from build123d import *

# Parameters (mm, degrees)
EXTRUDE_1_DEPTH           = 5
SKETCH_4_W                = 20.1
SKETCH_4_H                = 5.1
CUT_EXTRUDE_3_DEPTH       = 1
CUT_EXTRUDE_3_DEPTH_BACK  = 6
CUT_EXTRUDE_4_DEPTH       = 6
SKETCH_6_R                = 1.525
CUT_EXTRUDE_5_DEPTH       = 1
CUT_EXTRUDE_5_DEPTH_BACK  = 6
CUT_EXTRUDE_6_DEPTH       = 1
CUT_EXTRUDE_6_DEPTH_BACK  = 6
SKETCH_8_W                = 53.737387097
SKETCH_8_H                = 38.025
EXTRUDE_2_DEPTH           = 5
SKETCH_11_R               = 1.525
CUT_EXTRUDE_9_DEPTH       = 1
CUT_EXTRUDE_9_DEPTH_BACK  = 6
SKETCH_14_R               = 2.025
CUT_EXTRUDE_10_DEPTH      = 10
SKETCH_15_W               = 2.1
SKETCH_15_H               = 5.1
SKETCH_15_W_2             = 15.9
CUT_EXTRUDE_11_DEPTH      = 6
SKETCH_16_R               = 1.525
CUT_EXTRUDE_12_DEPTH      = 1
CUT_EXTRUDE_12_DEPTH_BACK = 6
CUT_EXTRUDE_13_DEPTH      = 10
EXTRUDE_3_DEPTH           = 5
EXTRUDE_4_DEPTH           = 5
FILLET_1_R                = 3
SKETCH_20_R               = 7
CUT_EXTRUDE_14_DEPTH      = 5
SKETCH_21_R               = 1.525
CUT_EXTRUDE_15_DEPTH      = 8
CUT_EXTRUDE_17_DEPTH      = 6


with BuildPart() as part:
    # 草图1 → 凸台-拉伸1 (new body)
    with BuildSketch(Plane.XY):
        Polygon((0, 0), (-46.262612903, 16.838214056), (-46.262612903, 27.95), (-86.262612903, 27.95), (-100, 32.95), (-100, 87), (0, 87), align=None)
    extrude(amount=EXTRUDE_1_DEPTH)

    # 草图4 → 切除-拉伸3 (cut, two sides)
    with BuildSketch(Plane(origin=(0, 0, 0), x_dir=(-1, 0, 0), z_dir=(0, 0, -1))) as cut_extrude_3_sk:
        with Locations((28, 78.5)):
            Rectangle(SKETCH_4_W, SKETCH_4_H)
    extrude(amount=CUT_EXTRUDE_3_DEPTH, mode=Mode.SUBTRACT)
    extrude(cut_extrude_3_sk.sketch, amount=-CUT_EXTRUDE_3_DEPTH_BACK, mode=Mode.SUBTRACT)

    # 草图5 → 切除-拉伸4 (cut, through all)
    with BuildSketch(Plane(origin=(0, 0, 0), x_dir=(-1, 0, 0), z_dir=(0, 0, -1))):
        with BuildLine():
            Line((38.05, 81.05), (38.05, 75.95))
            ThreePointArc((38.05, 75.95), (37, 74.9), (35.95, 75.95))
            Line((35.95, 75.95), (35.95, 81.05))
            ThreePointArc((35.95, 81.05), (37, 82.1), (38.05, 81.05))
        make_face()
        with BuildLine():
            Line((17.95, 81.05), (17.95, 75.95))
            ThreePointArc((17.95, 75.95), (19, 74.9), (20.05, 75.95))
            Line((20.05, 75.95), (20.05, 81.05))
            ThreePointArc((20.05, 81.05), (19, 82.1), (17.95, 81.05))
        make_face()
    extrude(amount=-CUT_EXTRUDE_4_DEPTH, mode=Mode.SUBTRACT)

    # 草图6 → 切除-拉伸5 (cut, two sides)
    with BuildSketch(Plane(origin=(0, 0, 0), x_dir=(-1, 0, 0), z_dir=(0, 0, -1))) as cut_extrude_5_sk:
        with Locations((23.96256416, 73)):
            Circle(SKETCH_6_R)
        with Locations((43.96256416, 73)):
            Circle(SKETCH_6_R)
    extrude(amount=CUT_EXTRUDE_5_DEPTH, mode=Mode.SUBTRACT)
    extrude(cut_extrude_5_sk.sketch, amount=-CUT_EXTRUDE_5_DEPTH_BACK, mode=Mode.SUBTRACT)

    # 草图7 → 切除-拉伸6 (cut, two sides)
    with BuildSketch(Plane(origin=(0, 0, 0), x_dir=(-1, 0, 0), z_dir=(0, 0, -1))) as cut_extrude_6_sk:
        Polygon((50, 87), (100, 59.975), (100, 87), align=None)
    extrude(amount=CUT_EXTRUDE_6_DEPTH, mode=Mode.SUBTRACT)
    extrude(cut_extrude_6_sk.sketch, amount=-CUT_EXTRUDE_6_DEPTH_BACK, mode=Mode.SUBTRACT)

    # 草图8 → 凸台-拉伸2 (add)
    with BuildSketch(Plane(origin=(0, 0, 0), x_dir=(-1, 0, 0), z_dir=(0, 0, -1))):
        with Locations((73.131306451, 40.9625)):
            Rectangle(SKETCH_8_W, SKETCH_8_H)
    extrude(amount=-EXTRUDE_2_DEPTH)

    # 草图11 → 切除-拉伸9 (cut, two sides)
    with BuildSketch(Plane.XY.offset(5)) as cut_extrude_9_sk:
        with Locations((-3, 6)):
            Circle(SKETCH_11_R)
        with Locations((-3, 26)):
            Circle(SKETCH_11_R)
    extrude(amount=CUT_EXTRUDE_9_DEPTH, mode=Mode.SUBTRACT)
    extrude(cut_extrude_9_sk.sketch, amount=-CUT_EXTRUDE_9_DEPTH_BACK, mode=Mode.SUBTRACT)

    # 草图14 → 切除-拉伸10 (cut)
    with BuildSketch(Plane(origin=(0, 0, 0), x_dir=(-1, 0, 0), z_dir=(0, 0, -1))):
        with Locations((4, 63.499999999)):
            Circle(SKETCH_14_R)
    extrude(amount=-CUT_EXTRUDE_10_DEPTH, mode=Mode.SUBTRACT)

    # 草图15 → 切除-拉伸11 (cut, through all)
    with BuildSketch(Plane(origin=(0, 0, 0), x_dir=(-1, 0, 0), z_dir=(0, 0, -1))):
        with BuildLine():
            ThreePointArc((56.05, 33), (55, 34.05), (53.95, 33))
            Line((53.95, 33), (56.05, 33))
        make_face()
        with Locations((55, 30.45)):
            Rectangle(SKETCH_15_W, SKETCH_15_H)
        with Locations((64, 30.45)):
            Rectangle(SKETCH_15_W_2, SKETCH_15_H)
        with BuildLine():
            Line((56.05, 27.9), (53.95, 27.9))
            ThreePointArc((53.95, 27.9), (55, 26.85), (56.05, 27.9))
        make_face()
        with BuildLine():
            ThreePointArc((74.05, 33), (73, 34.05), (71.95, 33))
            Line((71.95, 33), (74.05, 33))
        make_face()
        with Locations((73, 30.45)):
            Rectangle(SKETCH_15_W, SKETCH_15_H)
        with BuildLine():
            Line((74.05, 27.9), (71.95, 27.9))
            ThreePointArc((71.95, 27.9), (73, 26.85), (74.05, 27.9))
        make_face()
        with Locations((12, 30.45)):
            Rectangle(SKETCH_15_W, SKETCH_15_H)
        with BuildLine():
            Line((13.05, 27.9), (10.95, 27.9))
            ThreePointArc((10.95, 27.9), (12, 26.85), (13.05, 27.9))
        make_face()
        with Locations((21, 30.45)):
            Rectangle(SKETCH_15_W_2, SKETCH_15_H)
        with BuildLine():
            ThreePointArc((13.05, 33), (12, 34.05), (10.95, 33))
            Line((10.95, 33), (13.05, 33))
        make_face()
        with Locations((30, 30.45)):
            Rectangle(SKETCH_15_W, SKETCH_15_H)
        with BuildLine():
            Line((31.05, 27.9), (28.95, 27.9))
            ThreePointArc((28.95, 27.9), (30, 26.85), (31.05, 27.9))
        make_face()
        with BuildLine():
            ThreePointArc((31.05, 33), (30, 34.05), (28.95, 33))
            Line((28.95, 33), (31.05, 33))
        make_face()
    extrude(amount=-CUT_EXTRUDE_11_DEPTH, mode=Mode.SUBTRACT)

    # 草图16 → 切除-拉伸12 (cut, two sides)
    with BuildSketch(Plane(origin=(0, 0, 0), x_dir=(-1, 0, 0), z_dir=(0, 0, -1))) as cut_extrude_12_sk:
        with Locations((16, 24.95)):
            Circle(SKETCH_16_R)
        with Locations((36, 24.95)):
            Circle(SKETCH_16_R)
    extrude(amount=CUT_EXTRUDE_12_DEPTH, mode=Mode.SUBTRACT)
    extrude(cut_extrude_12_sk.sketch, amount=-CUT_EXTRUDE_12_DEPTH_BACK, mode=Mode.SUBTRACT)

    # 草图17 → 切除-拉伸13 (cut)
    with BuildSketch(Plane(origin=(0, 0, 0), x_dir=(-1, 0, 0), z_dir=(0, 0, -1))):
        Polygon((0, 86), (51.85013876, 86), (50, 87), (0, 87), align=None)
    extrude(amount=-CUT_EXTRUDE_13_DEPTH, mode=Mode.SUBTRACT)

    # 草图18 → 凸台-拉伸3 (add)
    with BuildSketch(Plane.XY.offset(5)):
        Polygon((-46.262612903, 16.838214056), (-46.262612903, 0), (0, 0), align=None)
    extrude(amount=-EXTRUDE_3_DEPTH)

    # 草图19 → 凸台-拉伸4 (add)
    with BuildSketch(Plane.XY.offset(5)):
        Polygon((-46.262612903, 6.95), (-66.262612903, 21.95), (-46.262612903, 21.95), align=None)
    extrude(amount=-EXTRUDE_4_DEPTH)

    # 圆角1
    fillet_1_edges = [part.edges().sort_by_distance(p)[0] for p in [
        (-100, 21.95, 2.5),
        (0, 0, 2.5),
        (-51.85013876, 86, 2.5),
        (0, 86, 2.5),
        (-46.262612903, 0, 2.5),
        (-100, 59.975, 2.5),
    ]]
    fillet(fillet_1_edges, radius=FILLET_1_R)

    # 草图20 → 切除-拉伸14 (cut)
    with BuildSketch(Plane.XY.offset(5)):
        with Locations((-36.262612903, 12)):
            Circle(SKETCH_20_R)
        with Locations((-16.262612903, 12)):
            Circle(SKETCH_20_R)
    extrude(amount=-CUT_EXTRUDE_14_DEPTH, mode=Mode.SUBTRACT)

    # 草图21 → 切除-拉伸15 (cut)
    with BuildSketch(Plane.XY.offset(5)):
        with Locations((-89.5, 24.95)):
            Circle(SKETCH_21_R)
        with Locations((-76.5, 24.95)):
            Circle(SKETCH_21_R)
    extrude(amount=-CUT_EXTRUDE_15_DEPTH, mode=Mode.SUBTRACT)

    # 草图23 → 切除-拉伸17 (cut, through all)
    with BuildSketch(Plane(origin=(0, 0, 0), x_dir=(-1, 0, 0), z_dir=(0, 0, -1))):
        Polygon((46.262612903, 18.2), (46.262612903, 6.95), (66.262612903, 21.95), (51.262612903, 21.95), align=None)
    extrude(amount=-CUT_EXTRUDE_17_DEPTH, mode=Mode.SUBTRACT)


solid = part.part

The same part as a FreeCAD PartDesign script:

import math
import FreeCAD as App
import Part
import Sketcher

V = App.Vector
Q = App.Units.Quantity


def edges_at(feature, points):
    """Names of the edges that pass closest to the given points."""
    edges = feature.Shape.Edges
    near = lambda p: min(range(len(edges)), key=lambda i: edges[i].distToShape(Part.Vertex(*p))[0])
    return sorted({f"Edge{near(p) + 1}" for p in points})

doc = App.newDocument("Part")
body = doc.addObject("PartDesign::Body", "Body")

sketch1 = body.newObject("Sketcher::SketchObject", "Sketch")
sketch1.AttachmentSupport = (doc.getObject("XY_Plane"), [""])
sketch1.MapMode = "FlatFace"
sketch1.addGeometry(Part.LineSegment(V(-46.262613, 16.838214, 0), V(0, 0, 0)), False)
sketch1.addGeometry(Part.LineSegment(V(0, 0, 0), V(0, 87, 0)), False)
sketch1.addGeometry(Part.LineSegment(V(0, 87, 0), V(-100, 87, 0)), False)
sketch1.addGeometry(Part.LineSegment(V(-100, 87, 0), V(-100, 32.95, 0)), False)
sketch1.addGeometry(Part.LineSegment(V(-100, 32.95, 0), V(-86.262613, 27.95, 0)), False)
sketch1.addGeometry(Part.LineSegment(V(-86.262613, 27.95, 0), V(-46.262613, 27.95, 0)), False)
sketch1.addGeometry(Part.LineSegment(V(-46.262613, 27.95, 0), V(-46.262613, 16.838214, 0)), False)
sketch1.addConstraint(Sketcher.Constraint("Coincident", 0, 2, 1, 1))
sketch1.addConstraint(Sketcher.Constraint("Coincident", 1, 2, 2, 1))
sketch1.addConstraint(Sketcher.Constraint("Coincident", 2, 2, 3, 1))
sketch1.addConstraint(Sketcher.Constraint("Coincident", 3, 2, 4, 1))
sketch1.addConstraint(Sketcher.Constraint("Coincident", 4, 2, 5, 1))
sketch1.addConstraint(Sketcher.Constraint("Coincident", 5, 2, 6, 1))
sketch1.addConstraint(Sketcher.Constraint("Coincident", 6, 2, 0, 1))
sketch1.addConstraint(Sketcher.Constraint("Vertical", 1))
sketch1.addConstraint(Sketcher.Constraint("Horizontal", 2))
sketch1.addConstraint(Sketcher.Constraint("Vertical", 3))
sketch1.addConstraint(Sketcher.Constraint("Horizontal", 5))
sketch1.addConstraint(Sketcher.Constraint("Vertical", 6))
sketch1.addConstraint(Sketcher.Constraint("Coincident", 0, 2, -1, 1))
sketch1.addConstraint(Sketcher.Constraint("Parallel", 0, 4))
sketch1.addConstraint(Sketcher.Constraint("DistanceX", 2, 2, 2, 1, Q("100 mm")))
sketch1.addConstraint(Sketcher.Constraint("DistanceX", 5, 1, 5, 2, Q("40 mm")))
sketch1.addConstraint(Sketcher.Constraint("DistanceY", 1, 1, 1, 2, Q("87 mm")))
sketch1.addConstraint(Sketcher.Constraint("Angle", 0, Q("-20 deg")))
sketch1.addConstraint(Sketcher.Constraint("DistanceY", 4, 2, 3, 2, Q("5 mm")))
sketch1.addConstraint(Sketcher.Constraint("DistanceY", 3, 2, 3, 1, Q("54.05 mm")))
pad1 = body.newObject("PartDesign::Pad", "Pad")
pad1.Profile = sketch1
pad1.Length = 5

sketch2 = body.newObject("Sketcher::SketchObject", "Sketch001")
sketch2.AttachmentSupport = (doc.getObject("XY_Plane"), [""])
sketch2.MapMode = "FlatFace"
sketch2.addGeometry(Part.LineSegment(V(-17.95, 81.05, 0), V(-17.95, 75.95, 0)), False)
sketch2.addGeometry(Part.LineSegment(V(-17.95, 75.95, 0), V(-38.05, 75.95, 0)), False)
sketch2.addGeometry(Part.LineSegment(V(-38.05, 75.95, 0), V(-38.05, 81.05, 0)), False)
sketch2.addGeometry(Part.LineSegment(V(-38.05, 81.05, 0), V(-17.95, 81.05, 0)), False)
sketch2.addConstraint(Sketcher.Constraint("Coincident", 0, 2, 1, 1))
sketch2.addConstraint(Sketcher.Constraint("Coincident", 1, 2, 2, 1))
sketch2.addConstraint(Sketcher.Constraint("Coincident", 2, 2, 3, 1))
sketch2.addConstraint(Sketcher.Constraint("Coincident", 3, 2, 0, 1))
sketch2.addConstraint(Sketcher.Constraint("Vertical", 0))
sketch2.addConstraint(Sketcher.Constraint("Horizontal", 1))
sketch2.addConstraint(Sketcher.Constraint("Vertical", 2))
sketch2.addConstraint(Sketcher.Constraint("Horizontal", 3))
sketch2.addConstraint(Sketcher.Constraint("DistanceX", 1, 2, 1, 1, Q("20.1 mm")))
sketch2.addConstraint(Sketcher.Constraint("DistanceY", 0, 2, 0, 1, Q("5.1 mm")))
sketch2.addConstraint(Sketcher.Constraint("DistanceX", 0, 2, -1, 1, Q("17.95 mm")))
sketch2.addConstraint(Sketcher.Constraint("DistanceY", -1, 1, 0, 2, Q("75.95 mm")))
pocket1 = body.newObject("PartDesign::Pocket", "Pocket")
pocket1.Profile = sketch2
pocket1.Type = "ThroughAll"
pocket1.Midplane = True

sketch3 = body.newObject("Sketcher::SketchObject", "Sketch002")
sketch3.AttachmentSupport = (doc.getObject("XY_Plane"), [""])
sketch3.MapMode = "FlatFace"
sketch3.addGeometry(Part.LineSegment(V(-38.05, 75.95, 0), V(-38.05, 81.05, 0)), False)
sketch3.addGeometry(Part.ArcOfCircle(Part.Circle(V(-37, 81.05, 0), V(0, 0, 1), 1.05), math.radians(0), math.radians(180)), False)
sketch3.addGeometry(Part.LineSegment(V(-35.95, 81.05, 0), V(-35.95, 75.95, 0)), False)
sketch3.addGeometry(Part.ArcOfCircle(Part.Circle(V(-37, 75.95, 0), V(0, 0, 1), 1.05), math.radians(180), math.radians(360)), False)
sketch3.addGeometry(Part.LineSegment(V(-17.95, 81.05, 0), V(-17.95, 75.95, 0)), False)
sketch3.addGeometry(Part.ArcOfCircle(Part.Circle(V(-19, 75.95, 0), V(0, 0, 1), 1.05), math.radians(180), math.radians(360)), False)
sketch3.addGeometry(Part.LineSegment(V(-20.05, 75.95, 0), V(-20.05, 81.05, 0)), False)
sketch3.addGeometry(Part.ArcOfCircle(Part.Circle(V(-19, 81.05, 0), V(0, 0, 1), 1.05), math.radians(0), math.radians(180)), False)
sketch3.addConstraint(Sketcher.Constraint("Tangent", 0, 2, 1, 2))
sketch3.addConstraint(Sketcher.Constraint("Tangent", 1, 1, 2, 1))
sketch3.addConstraint(Sketcher.Constraint("Tangent", 2, 2, 3, 2))
sketch3.addConstraint(Sketcher.Constraint("Tangent", 3, 1, 0, 1))
sketch3.addConstraint(Sketcher.Constraint("Tangent", 4, 2, 5, 2))
sketch3.addConstraint(Sketcher.Constraint("Tangent", 5, 1, 6, 1))
sketch3.addConstraint(Sketcher.Constraint("Tangent", 6, 2, 7, 2))
sketch3.addConstraint(Sketcher.Constraint("Tangent", 7, 1, 4, 1))
sketch3.addConstraint(Sketcher.Constraint("Vertical", 0))
sketch3.addConstraint(Sketcher.Constraint("Vertical", 2))
sketch3.addConstraint(Sketcher.Constraint("Vertical", 4))
sketch3.addConstraint(Sketcher.Constraint("Vertical", 6))
sketch3.addConstraint(Sketcher.Constraint("Equal", 3, 5))
sketch3.addConstraint(Sketcher.Constraint("Horizontal", 3, 3, 5, 3))
sketch3.addConstraint(Sketcher.Constraint("Horizontal", 1, 3, 7, 3))
sketch3.addConstraint(Sketcher.Constraint("Radius", 1, Q("1.05 mm")))
sketch3.addConstraint(Sketcher.Constraint("DistanceY", 0, 1, 0, 2, Q("5.1 mm")))
sketch3.addConstraint(Sketcher.Constraint("DistanceX", 1, 3, -1, 1, Q("37 mm")))
sketch3.addConstraint(Sketcher.Constraint("DistanceX", 5, 3, -1, 1, Q("19 mm")))
sketch3.addConstraint(Sketcher.Constraint("DistanceY", -1, 1, 1, 3, Q("81.05 mm")))
pocket2 = body.newObject("PartDesign::Pocket", "Pocket001")
pocket2.Profile = sketch3
pocket2.Type = "ThroughAll"
pocket2.Reversed = True

sketch4 = body.newObject("Sketcher::SketchObject", "Sketch003")
sketch4.AttachmentSupport = (doc.getObject("XY_Plane"), [""])
sketch4.MapMode = "FlatFace"
sketch4.addGeometry(Part.Circle(V(-23.962564, 73, 0), V(0, 0, 1), 1.525), False)
sketch4.addGeometry(Part.Circle(V(-43.962564, 73, 0), V(0, 0, 1), 1.525), False)
sketch4.addConstraint(Sketcher.Constraint("Equal", 0, 1))
sketch4.addConstraint(Sketcher.Constraint("Horizontal", 0, 3, 1, 3))
sketch4.addConstraint(Sketcher.Constraint("Diameter", 0, Q("3.05 mm")))
sketch4.addConstraint(Sketcher.Constraint("DistanceY", -1, 1, 0, 3, Q("73 mm")))
sketch4.addConstraint(Sketcher.Constraint("DistanceX", 1, 3, 0, 3, Q("20 mm")))
sketch4.addConstraint(Sketcher.Constraint("DistanceX", 0, 3, -1, 1, Q("23.962564 mm")))
pocket3 = body.newObject("PartDesign::Pocket", "Pocket002")
pocket3.Profile = sketch4
pocket3.Type = "ThroughAll"
pocket3.Midplane = True

sketch5 = body.newObject("Sketcher::SketchObject", "Sketch004")
sketch5.AttachmentSupport = (doc.getObject("XY_Plane"), [""])
sketch5.MapMode = "FlatFace"
sketch5.addGeometry(Part.LineSegment(V(-50, 87, 0), V(-100, 59.975, 0)), False)
sketch5.addGeometry(Part.LineSegment(V(-100, 59.975, 0), V(-100, 87, 0)), False)
sketch5.addGeometry(Part.LineSegment(V(-100, 87, 0), V(-50, 87, 0)), False)
sketch5.addConstraint(Sketcher.Constraint("Coincident", 0, 2, 1, 1))
sketch5.addConstraint(Sketcher.Constraint("Coincident", 1, 2, 2, 1))
sketch5.addConstraint(Sketcher.Constraint("Coincident", 2, 2, 0, 1))
sketch5.addConstraint(Sketcher.Constraint("Vertical", 1))
sketch5.addConstraint(Sketcher.Constraint("Horizontal", 2))
sketch5.addConstraint(Sketcher.Constraint("DistanceX", 2, 1, 2, 2, Q("50 mm")))
sketch5.addConstraint(Sketcher.Constraint("DistanceX", 0, 2, -1, 1, Q("100 mm")))
sketch5.addConstraint(Sketcher.Constraint("DistanceY", -1, 1, 1, 2, Q("87 mm")))
sketch5.addConstraint(Sketcher.Constraint("DistanceY", 1, 1, 1, 2, Q("27.025 mm")))
pocket4 = body.newObject("PartDesign::Pocket", "Pocket003")
pocket4.Profile = sketch5
pocket4.Type = "ThroughAll"
pocket4.Midplane = True

sketch6 = body.newObject("Sketcher::SketchObject", "Sketch005")
sketch6.AttachmentSupport = (doc.getObject("XY_Plane"), [""])
sketch6.MapMode = "FlatFace"
sketch6.addGeometry(Part.LineSegment(V(-46.262613, 59.975, 0), V(-46.262613, 21.95, 0)), False)
sketch6.addGeometry(Part.LineSegment(V(-46.262613, 21.95, 0), V(-100, 21.95, 0)), False)
sketch6.addGeometry(Part.LineSegment(V(-100, 21.95, 0), V(-100, 59.975, 0)), False)
sketch6.addGeometry(Part.LineSegment(V(-100, 59.975, 0), V(-46.262613, 59.975, 0)), False)
sketch6.addConstraint(Sketcher.Constraint("Coincident", 0, 2, 1, 1))
sketch6.addConstraint(Sketcher.Constraint("Coincident", 1, 2, 2, 1))
sketch6.addConstraint(Sketcher.Constraint("Coincident", 2, 2, 3, 1))
sketch6.addConstraint(Sketcher.Constraint("Coincident", 3, 2, 0, 1))
sketch6.addConstraint(Sketcher.Constraint("Vertical", 0))
sketch6.addConstraint(Sketcher.Constraint("Horizontal", 1))
sketch6.addConstraint(Sketcher.Constraint("Vertical", 2))
sketch6.addConstraint(Sketcher.Constraint("Horizontal", 3))
sketch6.addConstraint(Sketcher.Constraint("DistanceX", 1, 2, -1, 1, Q("100 mm")))
sketch6.addConstraint(Sketcher.Constraint("DistanceY", 0, 2, 0, 1, Q("38.025 mm")))
sketch6.addConstraint(Sketcher.Constraint("DistanceY", -1, 1, 0, 2, Q("21.95 mm")))
sketch6.addConstraint(Sketcher.Constraint("DistanceX", 1, 2, 1, 1, Q("53.737387 mm")))
pad2 = body.newObject("PartDesign::Pad", "Pad001")
pad2.Profile = sketch6
pad2.Length = 5

sketch7 = body.newObject("Sketcher::SketchObject", "Sketch006")
sketch7.AttachmentSupport = (doc.getObject("XY_Plane"), [""])
sketch7.MapMode = "FlatFace"
sketch7.AttachmentOffset = App.Placement(V(0, 0, 5), App.Rotation())
sketch7.addGeometry(Part.Circle(V(-3, 6, 0), V(0, 0, 1), 1.525), False)
sketch7.addGeometry(Part.Circle(V(-3, 26, 0), V(0, 0, 1), 1.525), False)
sketch7.addConstraint(Sketcher.Constraint("Equal", 0, 1))
sketch7.addConstraint(Sketcher.Constraint("Vertical", 0, 3, 1, 3))
sketch7.addConstraint(Sketcher.Constraint("Diameter", 0, Q("3.05 mm")))
sketch7.addConstraint(Sketcher.Constraint("DistanceX", 0, 3, -1, 1, Q("3 mm")))
sketch7.addConstraint(Sketcher.Constraint("DistanceY", -1, 1, 0, 3, Q("6 mm")))
sketch7.addConstraint(Sketcher.Constraint("DistanceY", -1, 1, 1, 3, Q("26 mm")))
pocket5 = body.newObject("PartDesign::Pocket", "Pocket004")
pocket5.Profile = sketch7
pocket5.Type = "ThroughAll"
pocket5.Midplane = True

sketch8 = body.newObject("Sketcher::SketchObject", "Sketch007")
sketch8.AttachmentSupport = (doc.getObject("XY_Plane"), [""])
sketch8.MapMode = "FlatFace"
sketch8.addGeometry(Part.Circle(V(-4, 63.5, 0), V(0, 0, 1), 2.025), False)
sketch8.addConstraint(Sketcher.Constraint("Diameter", 0, Q("4.05 mm")))
sketch8.addConstraint(Sketcher.Constraint("DistanceX", 0, 3, -1, 1, Q("4 mm")))
sketch8.addConstraint(Sketcher.Constraint("DistanceY", -1, 1, 0, 3, Q("63.5 mm")))
pocket6 = body.newObject("PartDesign::Pocket", "Pocket005")
pocket6.Profile = sketch8
pocket6.Length = 10
pocket6.Reversed = True

sketch9 = body.newObject("Sketcher::SketchObject", "Sketch008")
sketch9.AttachmentSupport = (doc.getObject("XY_Plane"), [""])
sketch9.MapMode = "FlatFace"
sketch9.addGeometry(Part.ArcOfCircle(Part.Circle(V(-55, 33, 0), V(0, 0, 1), 1.05), math.radians(0), math.radians(180)), False)
sketch9.addGeometry(Part.LineSegment(V(-53.95, 33, 0), V(-53.95, 27.9, 0)), False)
sketch9.addGeometry(Part.ArcOfCircle(Part.Circle(V(-55, 27.9, 0), V(0, 0, 1), 1.05), math.radians(180), math.radians(360)), False)
sketch9.addGeometry(Part.LineSegment(V(-56.05, 27.9, 0), V(-71.95, 27.9, 0)), False)
sketch9.addGeometry(Part.ArcOfCircle(Part.Circle(V(-73, 27.9, 0), V(0, 0, 1), 1.05), math.radians(180), math.radians(360)), False)
sketch9.addGeometry(Part.LineSegment(V(-74.05, 27.9, 0), V(-74.05, 33, 0)), False)
sketch9.addGeometry(Part.ArcOfCircle(Part.Circle(V(-73, 33, 0), V(0, 0, 1), 1.05), math.radians(0), math.radians(180)), False)
sketch9.addGeometry(Part.LineSegment(V(-71.95, 33, 0), V(-56.05, 33, 0)), False)
sketch9.addGeometry(Part.LineSegment(V(-10.95, 33, 0), V(-10.95, 27.9, 0)), False)
sketch9.addGeometry(Part.ArcOfCircle(Part.Circle(V(-12, 27.9, 0), V(0, 0, 1), 1.05), math.radians(180), math.radians(360)), False)
sketch9.addGeometry(Part.LineSegment(V(-13.05, 27.9, 0), V(-28.95, 27.9, 0)), False)
sketch9.addGeometry(Part.ArcOfCircle(Part.Circle(V(-30, 27.9, 0), V(0, 0, 1), 1.05), math.radians(180), math.radians(360)), False)
sketch9.addGeometry(Part.LineSegment(V(-31.05, 27.9, 0), V(-31.05, 33, 0)), False)
sketch9.addGeometry(Part.ArcOfCircle(Part.Circle(V(-30, 33, 0), V(0, 0, 1), 1.05), math.radians(0), math.radians(180)), False)
sketch9.addGeometry(Part.LineSegment(V(-28.95, 33, 0), V(-13.05, 33, 0)), False)
sketch9.addGeometry(Part.ArcOfCircle(Part.Circle(V(-12, 33, 0), V(0, 0, 1), 1.05), math.radians(0), math.radians(180)), False)
sketch9.addConstraint(Sketcher.Constraint("Tangent", 0, 1, 1, 1))
sketch9.addConstraint(Sketcher.Constraint("Tangent", 1, 2, 2, 2))
sketch9.addConstraint(Sketcher.Constraint("Coincident", 2, 1, 3, 1))
sketch9.addConstraint(Sketcher.Constraint("Coincident", 3, 2, 4, 2))
sketch9.addConstraint(Sketcher.Constraint("Tangent", 4, 1, 5, 1))
sketch9.addConstraint(Sketcher.Constraint("Tangent", 5, 2, 6, 2))
sketch9.addConstraint(Sketcher.Constraint("Coincident", 6, 1, 7, 1))
sketch9.addConstraint(Sketcher.Constraint("Coincident", 7, 2, 0, 2))
sketch9.addConstraint(Sketcher.Constraint("Tangent", 8, 2, 9, 2))
sketch9.addConstraint(Sketcher.Constraint("Coincident", 9, 1, 10, 1))
sketch9.addConstraint(Sketcher.Constraint("Coincident", 10, 2, 11, 2))
sketch9.addConstraint(Sketcher.Constraint("Tangent", 11, 1, 12, 1))
sketch9.addConstraint(Sketcher.Constraint("Tangent", 12, 2, 13, 2))
sketch9.addConstraint(Sketcher.Constraint("Coincident", 13, 1, 14, 1))
sketch9.addConstraint(Sketcher.Constraint("Coincident", 14, 2, 15, 2))
sketch9.addConstraint(Sketcher.Constraint("Tangent", 15, 1, 8, 1))
sketch9.addConstraint(Sketcher.Constraint("Vertical", 1))
sketch9.addConstraint(Sketcher.Constraint("Horizontal", 3))
sketch9.addConstraint(Sketcher.Constraint("Vertical", 5))
sketch9.addConstraint(Sketcher.Constraint("Horizontal", 7))
sketch9.addConstraint(Sketcher.Constraint("Vertical", 8))
sketch9.addConstraint(Sketcher.Constraint("Horizontal", 10))
sketch9.addConstraint(Sketcher.Constraint("Vertical", 12))
sketch9.addConstraint(Sketcher.Constraint("Horizontal", 14))
sketch9.addConstraint(Sketcher.Constraint("Equal", 0, 2))
sketch9.addConstraint(Sketcher.Constraint("Equal", 2, 4))
sketch9.addConstraint(Sketcher.Constraint("Equal", 4, 6))
sketch9.addConstraint(Sketcher.Constraint("Equal", 6, 9))
sketch9.addConstraint(Sketcher.Constraint("Equal", 9, 11))
sketch9.addConstraint(Sketcher.Constraint("Equal", 11, 13))
sketch9.addConstraint(Sketcher.Constraint("Equal", 13, 15))
sketch9.addConstraint(Sketcher.Constraint("Horizontal", 2, 3, 4, 3))
sketch9.addConstraint(Sketcher.Constraint("Horizontal", 0, 3, 6, 3))
sketch9.addConstraint(Sketcher.Constraint("Horizontal", 4, 3, 9, 3))
sketch9.addConstraint(Sketcher.Constraint("Horizontal", 9, 3, 11, 3))
sketch9.addConstraint(Sketcher.Constraint("Horizontal", 6, 3, 13, 3))
sketch9.addConstraint(Sketcher.Constraint("Horizontal", 13, 3, 15, 3))
sketch9.addConstraint(Sketcher.Constraint("Horizontal", 1, 2, 2, 1))
sketch9.addConstraint(Sketcher.Constraint("Horizontal", 5, 2, 6, 1))
sketch9.addConstraint(Sketcher.Constraint("Horizontal", 8, 2, 9, 1))
sketch9.addConstraint(Sketcher.Constraint("Horizontal", 12, 2, 13, 1))
sketch9.addConstraint(Sketcher.Constraint("Equal", 7, 10))
sketch9.addConstraint(Sketcher.Constraint("Radius", 0, Q("1.05 mm")))
sketch9.addConstraint(Sketcher.Constraint("DistanceX", 3, 2, 3, 1, Q("15.9 mm")))
sketch9.addConstraint(Sketcher.Constraint("DistanceY", 1, 2, 1, 1, Q("5.1 mm")))
sketch9.addConstraint(Sketcher.Constraint("DistanceX", 0, 3, -1, 1, Q("55 mm")))
sketch9.addConstraint(Sketcher.Constraint("DistanceY", -1, 1, 0, 3, Q("33 mm")))
sketch9.addConstraint(Sketcher.Constraint("DistanceX", 9, 3, -1, 1, Q("12 mm")))
pocket7 = body.newObject("PartDesign::Pocket", "Pocket006")
pocket7.Profile = sketch9
pocket7.Type = "ThroughAll"
pocket7.Reversed = True

sketch10 = body.newObject("Sketcher::SketchObject", "Sketch009")
sketch10.AttachmentSupport = (doc.getObject("XY_Plane"), [""])
sketch10.MapMode = "FlatFace"
sketch10.addGeometry(Part.Circle(V(-16, 24.95, 0), V(0, 0, 1), 1.525), False)
sketch10.addGeometry(Part.Circle(V(-36, 24.95, 0), V(0, 0, 1), 1.525), False)
sketch10.addConstraint(Sketcher.Constraint("Equal", 0, 1))
sketch10.addConstraint(Sketcher.Constraint("Horizontal", 0, 3, 1, 3))
sketch10.addConstraint(Sketcher.Constraint("Diameter", 0, Q("3.05 mm")))
sketch10.addConstraint(Sketcher.Constraint("DistanceX", 0, 3, -1, 1, Q("16 mm")))
sketch10.addConstraint(Sketcher.Constraint("DistanceX", 1, 3, -1, 1, Q("36 mm")))
sketch10.addConstraint(Sketcher.Constraint("DistanceY", -1, 1, 0, 3, Q("24.95 mm")))
pocket8 = body.newObject("PartDesign::Pocket", "Pocket007")
pocket8.Profile = sketch10
pocket8.Type = "ThroughAll"
pocket8.Midplane = True

sketch11 = body.newObject("Sketcher::SketchObject", "Sketch010")
sketch11.AttachmentSupport = (doc.getObject("XY_Plane"), [""])
sketch11.MapMode = "FlatFace"
sketch11.addGeometry(Part.LineSegment(V(0, 86, 0), V(-51.850139, 86, 0)), False)
sketch11.addGeometry(Part.LineSegment(V(-51.850139, 86, 0), V(-50, 87, 0)), False)
sketch11.addGeometry(Part.LineSegment(V(-50, 87, 0), V(0, 87, 0)), False)
sketch11.addGeometry(Part.LineSegment(V(0, 87, 0), V(0, 86, 0)), False)
sketch11.addConstraint(Sketcher.Constraint("Coincident", 0, 2, 1, 1))
sketch11.addConstraint(Sketcher.Constraint("Coincident", 1, 2, 2, 1))
sketch11.addConstraint(Sketcher.Constraint("Coincident", 2, 2, 3, 1))
sketch11.addConstraint(Sketcher.Constraint("Coincident", 3, 2, 0, 1))
sketch11.addConstraint(Sketcher.Constraint("Horizontal", 0))
sketch11.addConstraint(Sketcher.Constraint("Horizontal", 2))
sketch11.addConstraint(Sketcher.Constraint("Vertical", 3))
sketch11.addConstraint(Sketcher.Constraint("PointOnObject", 2, 2, -2))
sketch11.addConstraint(Sketcher.Constraint("DistanceX", 2, 1, 2, 2, Q("50 mm")))
sketch11.addConstraint(Sketcher.Constraint("DistanceY", 3, 2, 3, 1, Q("1 mm")))
sketch11.addConstraint(Sketcher.Constraint("DistanceY", -1, 1, 0, 2, Q("86 mm")))
sketch11.addConstraint(Sketcher.Constraint("DistanceX", 0, 2, 0, 1, Q("51.850139 mm")))
pocket9 = body.newObject("PartDesign::Pocket", "Pocket008")
pocket9.Profile = sketch11
pocket9.Length = 10
pocket9.Reversed = True

sketch12 = body.newObject("Sketcher::SketchObject", "Sketch011")
sketch12.AttachmentSupport = (doc.getObject("XY_Plane"), [""])
sketch12.MapMode = "FlatFace"
sketch12.AttachmentOffset = App.Placement(V(0, 0, 5), App.Rotation())
sketch12.addGeometry(Part.LineSegment(V(-46.262613, 16.838214, 0), V(-46.262613, 0, 0)), False)
sketch12.addGeometry(Part.LineSegment(V(-46.262613, 0, 0), V(0, 0, 0)), False)
sketch12.addGeometry(Part.LineSegment(V(0, 0, 0), V(-46.262613, 16.838214, 0)), False)
sketch12.addConstraint(Sketcher.Constraint("Coincident", 0, 2, 1, 1))
sketch12.addConstraint(Sketcher.Constraint("Coincident", 1, 2, 2, 1))
sketch12.addConstraint(Sketcher.Constraint("Coincident", 2, 2, 0, 1))
sketch12.addConstraint(Sketcher.Constraint("Vertical", 0))
sketch12.addConstraint(Sketcher.Constraint("Horizontal", 1))
sketch12.addConstraint(Sketcher.Constraint("Coincident", 1, 2, -1, 1))
sketch12.addConstraint(Sketcher.Constraint("Angle", 2, Q("160 deg")))
sketch12.addConstraint(Sketcher.Constraint("DistanceX", 1, 1, 1, 2, Q("46.262613 mm")))
pad3 = body.newObject("PartDesign::Pad", "Pad002")
pad3.Profile = sketch12
pad3.Length = 5
pad3.Reversed = True

sketch13 = body.newObject("Sketcher::SketchObject", "Sketch012")
sketch13.AttachmentSupport = (doc.getObject("XY_Plane"), [""])
sketch13.MapMode = "FlatFace"
sketch13.AttachmentOffset = App.Placement(V(0, 0, 5), App.Rotation())
sketch13.addGeometry(Part.LineSegment(V(-66.262613, 21.95, 0), V(-46.262613, 6.95, 0)), False)
sketch13.addGeometry(Part.LineSegment(V(-46.262613, 6.95, 0), V(-46.262613, 21.95, 0)), False)
sketch13.addGeometry(Part.LineSegment(V(-46.262613, 21.95, 0), V(-66.262613, 21.95, 0)), False)
sketch13.addConstraint(Sketcher.Constraint("Coincident", 0, 2, 1, 1))
sketch13.addConstraint(Sketcher.Constraint("Coincident", 1, 2, 2, 1))
sketch13.addConstraint(Sketcher.Constraint("Coincident", 2, 2, 0, 1))
sketch13.addConstraint(Sketcher.Constraint("Vertical", 1))
sketch13.addConstraint(Sketcher.Constraint("Horizontal", 2))
sketch13.addConstraint(Sketcher.Constraint("DistanceX", 2, 2, 2, 1, Q("20 mm")))
sketch13.addConstraint(Sketcher.Constraint("DistanceY", 1, 1, 1, 2, Q("15 mm")))
sketch13.addConstraint(Sketcher.Constraint("DistanceY", -1, 1, 0, 2, Q("6.95 mm")))
sketch13.addConstraint(Sketcher.Constraint("DistanceX", 0, 2, -1, 1, Q("46.262613 mm")))
pad4 = body.newObject("PartDesign::Pad", "Pad003")
pad4.Profile = sketch13
pad4.Length = 5
pad4.Reversed = True
doc.recompute()

fillet = body.newObject("PartDesign::Fillet", "Fillet")
fillet.Base = (pad4, edges_at(pad4, [
    (-100, 21.95, 2.5),
    (0, 0, 2.5),
    (-51.85, 86, 2.5),
    (0, 86, 2.5),
    (-46.263, 0, 2.5),
    (-100, 59.975, 2.5),
]))
fillet.Radius = 3

sketch14 = body.newObject("Sketcher::SketchObject", "Sketch013")
sketch14.AttachmentSupport = (doc.getObject("XY_Plane"), [""])
sketch14.MapMode = "FlatFace"
sketch14.AttachmentOffset = App.Placement(V(0, 0, 5), App.Rotation())
sketch14.addGeometry(Part.Circle(V(-36.262613, 12, 0), V(0, 0, 1), 7), False)
sketch14.addGeometry(Part.Circle(V(-16.262613, 12, 0), V(0, 0, 1), 7), False)
sketch14.addConstraint(Sketcher.Constraint("Equal", 0, 1))
sketch14.addConstraint(Sketcher.Constraint("Horizontal", 0, 3, 1, 3))
sketch14.addConstraint(Sketcher.Constraint("Diameter", 0, Q("14 mm")))
sketch14.addConstraint(Sketcher.Constraint("DistanceY", -1, 1, 0, 3, Q("12 mm")))
sketch14.addConstraint(Sketcher.Constraint("DistanceX", 0, 3, 1, 3, Q("20 mm")))
sketch14.addConstraint(Sketcher.Constraint("DistanceX", 0, 3, -1, 1, Q("36.262613 mm")))
pocket10 = body.newObject("PartDesign::Pocket", "Pocket009")
pocket10.Profile = sketch14
pocket10.Length = 5

sketch15 = body.newObject("Sketcher::SketchObject", "Sketch014")
sketch15.AttachmentSupport = (doc.getObject("XY_Plane"), [""])
sketch15.MapMode = "FlatFace"
sketch15.AttachmentOffset = App.Placement(V(0, 0, 5), App.Rotation())
sketch15.addGeometry(Part.Circle(V(-89.5, 24.95, 0), V(0, 0, 1), 1.525), False)
sketch15.addGeometry(Part.Circle(V(-76.5, 24.95, 0), V(0, 0, 1), 1.525), False)
sketch15.addConstraint(Sketcher.Constraint("Equal", 0, 1))
sketch15.addConstraint(Sketcher.Constraint("Horizontal", 0, 3, 1, 3))
sketch15.addConstraint(Sketcher.Constraint("Diameter", 0, Q("3.05 mm")))
sketch15.addConstraint(Sketcher.Constraint("DistanceX", 0, 3, 1, 3, Q("13 mm")))
sketch15.addConstraint(Sketcher.Constraint("DistanceX", 0, 3, -1, 1, Q("89.5 mm")))
sketch15.addConstraint(Sketcher.Constraint("DistanceY", -1, 1, 0, 3, Q("24.95 mm")))
pocket11 = body.newObject("PartDesign::Pocket", "Pocket010")
pocket11.Profile = sketch15
pocket11.Length = 8

sketch16 = body.newObject("Sketcher::SketchObject", "Sketch015")
sketch16.AttachmentSupport = (doc.getObject("XY_Plane"), [""])
sketch16.MapMode = "FlatFace"
sketch16.addGeometry(Part.LineSegment(V(-46.262613, 18.2, 0), V(-46.262613, 6.95, 0)), False)
sketch16.addGeometry(Part.LineSegment(V(-46.262613, 6.95, 0), V(-66.262613, 21.95, 0)), False)
sketch16.addGeometry(Part.LineSegment(V(-66.262613, 21.95, 0), V(-51.262613, 21.95, 0)), False)
sketch16.addGeometry(Part.LineSegment(V(-51.262613, 21.95, 0), V(-46.262613, 18.2, 0)), False)
sketch16.addConstraint(Sketcher.Constraint("Coincident", 0, 2, 1, 1))
sketch16.addConstraint(Sketcher.Constraint("Coincident", 1, 2, 2, 1))
sketch16.addConstraint(Sketcher.Constraint("Coincident", 2, 2, 3, 1))
sketch16.addConstraint(Sketcher.Constraint("Coincident", 3, 2, 0, 1))
sketch16.addConstraint(Sketcher.Constraint("Vertical", 0))
sketch16.addConstraint(Sketcher.Constraint("Horizontal", 2))
sketch16.addConstraint(Sketcher.Constraint("Parallel", 1, 3))
sketch16.addConstraint(Sketcher.Constraint("DistanceX", 2, 1, 2, 2, Q("15 mm")))
sketch16.addConstraint(Sketcher.Constraint("Distance", 1, Q("25 mm")))
sketch16.addConstraint(Sketcher.Constraint("DistanceX", 1, 2, 0, 2, Q("20 mm")))
sketch16.addConstraint(Sketcher.Constraint("DistanceY", -1, 1, 3, 2, Q("18.2 mm")))
sketch16.addConstraint(Sketcher.Constraint("DistanceX", 0, 2, -1, 1, Q("46.262613 mm")))
pocket12 = body.newObject("PartDesign::Pocket", "Pocket011")
pocket12.Profile = sketch16
pocket12.Type = "ThroughAll"
pocket12.Reversed = True

doc.recompute()
